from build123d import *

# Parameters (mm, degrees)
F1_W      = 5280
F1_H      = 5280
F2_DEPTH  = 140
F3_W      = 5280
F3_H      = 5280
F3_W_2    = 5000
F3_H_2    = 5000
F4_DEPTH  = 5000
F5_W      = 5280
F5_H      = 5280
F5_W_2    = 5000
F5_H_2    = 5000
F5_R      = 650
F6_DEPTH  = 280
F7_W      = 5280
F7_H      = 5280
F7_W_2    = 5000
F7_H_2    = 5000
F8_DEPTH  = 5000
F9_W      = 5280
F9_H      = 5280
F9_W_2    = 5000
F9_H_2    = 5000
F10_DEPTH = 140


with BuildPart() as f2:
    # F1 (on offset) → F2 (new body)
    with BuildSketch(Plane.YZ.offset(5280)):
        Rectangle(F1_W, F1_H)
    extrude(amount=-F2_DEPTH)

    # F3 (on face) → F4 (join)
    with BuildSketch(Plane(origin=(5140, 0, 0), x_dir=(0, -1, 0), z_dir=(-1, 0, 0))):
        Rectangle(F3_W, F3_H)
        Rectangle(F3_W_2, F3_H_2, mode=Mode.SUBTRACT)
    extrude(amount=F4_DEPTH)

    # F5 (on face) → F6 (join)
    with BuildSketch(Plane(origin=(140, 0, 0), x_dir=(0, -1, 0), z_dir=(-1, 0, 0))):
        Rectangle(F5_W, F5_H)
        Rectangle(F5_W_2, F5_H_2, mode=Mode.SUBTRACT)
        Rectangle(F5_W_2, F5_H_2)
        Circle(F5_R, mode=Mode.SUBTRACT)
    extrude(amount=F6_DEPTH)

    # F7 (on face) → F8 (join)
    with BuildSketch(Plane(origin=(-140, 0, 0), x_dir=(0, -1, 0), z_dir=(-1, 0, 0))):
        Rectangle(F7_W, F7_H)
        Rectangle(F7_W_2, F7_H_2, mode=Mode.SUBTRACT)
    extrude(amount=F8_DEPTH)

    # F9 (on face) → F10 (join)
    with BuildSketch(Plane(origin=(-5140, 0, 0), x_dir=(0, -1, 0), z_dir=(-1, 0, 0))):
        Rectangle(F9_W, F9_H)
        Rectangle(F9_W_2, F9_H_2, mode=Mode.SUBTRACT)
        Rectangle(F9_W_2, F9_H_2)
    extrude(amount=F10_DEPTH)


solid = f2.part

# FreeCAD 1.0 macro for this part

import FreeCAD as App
import Part
import Sketcher
from FreeCAD import Vector
Q = App.Units.Quantity


def add_polygon(sketch, points):
    """Adds a closed chain of lines whose ends are joined by coincident constraints."""
    first, n = sketch.GeometryCount, len(points)
    for a, b in zip(points, points[1:] + points[:1]):
        sketch.addGeometry(Part.LineSegment(App.Vector(*a, 0), App.Vector(*b, 0)), False)
    for i in range(n):
        sketch.addConstraint(Sketcher.Constraint("Coincident", first + i, 2, first + (i + 1) % n, 1))

doc = App.newDocument("Part")
body = doc.addObject("PartDesign::Body", "Body")

# Sketch on YZ plane
sketch1 = body.newObject("Sketcher::SketchObject", "Sketch")
sketch1.AttachmentSupport = (doc.getObject("YZ_Plane"), [""])
sketch1.MapMode = "FlatFace"
sketch1.AttachmentOffset = App.Placement(Vector(0, 0, 5280), App.Rotation())
add_polygon(sketch1, [(-2640, 2640), (-2640, -2640), (2640, -2640), (2640, 2640)])  # lines 0-3
sketch1.addConstraint([
    Sketcher.Constraint("Vertical", 0),
    Sketcher.Constraint("Horizontal", 1),
    Sketcher.Constraint("Vertical", 2),
    Sketcher.Constraint("Horizontal", 3),
    Sketcher.Constraint("Symmetric", 0, 2, 2, 2, -1, 1),
    Sketcher.Constraint("Equal", 3, 0),
    Sketcher.Constraint("DistanceX", 1, 1, 1, 2, Q("5280 mm")),
])
pad1 = body.newObject("PartDesign::Pad", "Pad")
pad1.Profile = sketch1
pad1.Length = 140
pad1.Reversed = True

# Sketch on YZ plane
sketch2 = body.newObject("Sketcher::SketchObject", "Sketch001")
sketch2.AttachmentSupport = (doc.getObject("YZ_Plane"), [""])
sketch2.MapMode = "FlatFace"
sketch2.AttachmentOffset = App.Placement(Vector(0, 0, 5140), App.Rotation())
add_polygon(sketch2, [(2640, 2640), (2640, -2640), (-2640, -2640), (-2640, 2640)])  # lines 0-3
add_polygon(sketch2, [(-2500, -2500), (2500, -2500), (2500, 2500), (-2500, 2500)])  # lines 4-7
sketch2.addConstraint([
    Sketcher.Constraint("Vertical", 0),
    Sketcher.Constraint("Horizontal", 1),
    Sketcher.Constraint("Vertical", 2),
    Sketcher.Constraint("Horizontal", 3),
    Sketcher.Constraint("Horizontal", 4),
    Sketcher.Constraint("Vertical", 5),
    Sketcher.Constraint("Horizontal", 6),
    Sketcher.Constraint("Vertical", 7),
    Sketcher.Constraint("Symmetric", 0, 2, 2, 2, -1, 1),
    Sketcher.Constraint("Symmetric", 4, 2, 6, 2, -1, 1),
    Sketcher.Constraint("Equal", 3, 0),
    Sketcher.Constraint("Equal", 6, 5),
    Sketcher.Constraint("DistanceX", 1, 2, 1, 1, Q("5280 mm")),
    Sketcher.Constraint("DistanceX", 4, 1, 4, 2, Q("5000 mm")),
])
pad2 = body.newObject("PartDesign::Pad", "Pad001")
pad2.Profile = sketch2
pad2.Length = 5000
pad2.Reversed = True

# Sketch on YZ plane
sketch3 = body.newObject("Sketcher::SketchObject", "Sketch002")
sketch3.AttachmentSupport = (doc.getObject("YZ_Plane"), [""])
sketch3.MapMode = "FlatFace"
sketch3.AttachmentOffset = App.Placement(Vector(0, 0, 140), App.Rotation())
add_polygon(sketch3, [(2640, 2640), (2640, -2640), (-2640, -2640), (-2640, 2640)])  # lines 0-3
sketch3.addGeometry(Part.Circle(Vector(0, 0, 0), Vector(0, 0, 1), 650), False)  # 4
sketch3.addConstraint([
    Sketcher.Constraint("Vertical", 0),
    Sketcher.Constraint("Horizontal", 1),
    Sketcher.Constraint("Vertical", 2),
    Sketcher.Constraint("Horizontal", 3),
    Sketcher.Constraint("Coincident", 4, 3, -1, 1),
    Sketcher.Constraint("Symmetric", 0, 2, 2, 2, -1, 1),
    Sketcher.Constraint("Equal", 3, 0),
    Sketcher.Constraint("Diameter", 4, Q("1300 mm")),
    Sketcher.Constraint("DistanceX", 1, 2, 1, 1, Q("5280 mm")),
])
pad3 = body.newObject("PartDesign::Pad", "Pad002")
pad3.Profile = sketch3
pad3.Length = 280
pad3.Reversed = True

# Sketch on YZ plane
sketch4 = body.newObject("Sketcher::SketchObject", "Sketch003")
sketch4.AttachmentSupport = (doc.getObject("YZ_Plane"), [""])
sketch4.MapMode = "FlatFace"
sketch4.AttachmentOffset = App.Placement(Vector(0, 0, -140), App.Rotation())
add_polygon(sketch4, [(2640, 2640), (2640, -2640), (-2640, -2640), (-2640, 2640)])  # lines 0-3
add_polygon(sketch4, [(-2500, -2500), (2500, -2500), (2500, 2500), (-2500, 2500)])  # lines 4-7
sketch4.addConstraint([
    Sketcher.Constraint("Vertical", 0),
    Sketcher.Constraint("Horizontal", 1),
    Sketcher.Constraint("Vertical", 2),
    Sketcher.Constraint("Horizontal", 3),
    Sketcher.Constraint("Horizontal", 4),
    Sketcher.Constraint("Vertical", 5),
    Sketcher.Constraint("Horizontal", 6),
    Sketcher.Constraint("Vertical", 7),
    Sketcher.Constraint("Symmetric", 0, 2, 2, 2, -1, 1),
    Sketcher.Constraint("Symmetric", 4, 2, 6, 2, -1, 1),
    Sketcher.Constraint("Equal", 3, 0),
    Sketcher.Constraint("Equal", 6, 5),
    Sketcher.Constraint("DistanceX", 1, 2, 1, 1, Q("5280 mm")),
    Sketcher.Constraint("DistanceX", 4, 1, 4, 2, Q("5000 mm")),
])
pad4 = body.newObject("PartDesign::Pad", "Pad003")
pad4.Profile = sketch4
pad4.Length = 5000
pad4.Reversed = True

# Sketch on YZ plane
sketch5 = body.newObject("Sketcher::SketchObject", "Sketch004")
sketch5.AttachmentSupport = (doc.getObject("YZ_Plane"), [""])
sketch5.MapMode = "FlatFace"
sketch5.AttachmentOffset = App.Placement(Vector(0, 0, -5140), App.Rotation())
add_polygon(sketch5, [(2640, 2640), (2640, -2640), (-2640, -2640), (-2640, 2640)])  # lines 0-3
sketch5.addConstraint([
    Sketcher.Constraint("Vertical", 0),
    Sketcher.Constraint("Horizontal", 1),
    Sketcher.Constraint("Vertical", 2),
    Sketcher.Constraint("Horizontal", 3),
    Sketcher.Constraint("Symmetric", 0, 2, 2, 2, -1, 1),
    Sketcher.Constraint("Equal", 3, 0),
    Sketcher.Constraint("DistanceX", 1, 2, 1, 1, Q("5280 mm")),
])
pad5 = body.newObject("PartDesign::Pad", "Pad004")
pad5.Profile = sketch5
pad5.Length = 140
pad5.Reversed = True

doc.recompute()
